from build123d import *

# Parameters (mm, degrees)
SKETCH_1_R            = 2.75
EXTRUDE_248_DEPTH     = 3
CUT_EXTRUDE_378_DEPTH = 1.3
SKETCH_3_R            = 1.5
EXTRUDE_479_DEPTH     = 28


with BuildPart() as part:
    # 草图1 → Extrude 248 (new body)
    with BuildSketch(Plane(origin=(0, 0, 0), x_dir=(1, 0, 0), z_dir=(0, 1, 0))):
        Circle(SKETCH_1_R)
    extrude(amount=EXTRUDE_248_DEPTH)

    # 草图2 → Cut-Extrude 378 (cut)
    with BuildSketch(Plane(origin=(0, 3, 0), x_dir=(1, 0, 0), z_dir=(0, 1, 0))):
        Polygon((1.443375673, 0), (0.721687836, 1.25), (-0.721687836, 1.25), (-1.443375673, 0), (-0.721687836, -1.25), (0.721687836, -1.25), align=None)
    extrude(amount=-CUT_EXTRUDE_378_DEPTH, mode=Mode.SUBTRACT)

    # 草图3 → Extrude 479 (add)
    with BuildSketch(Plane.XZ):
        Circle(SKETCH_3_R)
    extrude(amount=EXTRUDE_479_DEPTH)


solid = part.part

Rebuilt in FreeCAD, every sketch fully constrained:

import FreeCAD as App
import Part
import Sketcher
Q = App.Units.Quantity


def add_polygon(sketch, points):
    """Adds a closed chain of lines whose ends are joined by coincident constraints."""
    first, n = sketch.GeometryCount, len(points)
    for a, b in zip(points, points[1:] + points[:1]):
        sketch.addGeometry(Part.LineSegment(App.Vector(*a, 0), App.Vector(*b, 0)), False)
    for i in range(n):
        sketch.addConstraint(Sketcher.Constraint("Coincident", first + i, 2, first + (i + 1) % n, 1))

doc = App.newDocument("Part")
body = doc.addObject("PartDesign::Body", "Body")

sketch1 = body.newObject("Sketcher::SketchObject", "Sketch")
sketch1.AttachmentSupport = (doc.getObject("XZ_Plane"), [""])
sketch1.MapMode = "FlatFace"
sketch1.addGeometry(Part.Circle(App.Vector(0, 0, 0), App.Vector(0, 0, 1), 2.75), False)
sketch1.addConstraint(Sketcher.Constraint("Coincident", 0, 3, -1, 1))
sketch1.addConstraint(Sketcher.Constraint("Diameter", 0, Q("5.5 mm")))
pad1 = body.newObject("PartDesign::Pad", "Pad")
pad1.Profile = sketch1
pad1.Length = 3
pad1.Reversed = True

sketch2 = body.newObject("Sketcher::SketchObject", "Sketch001")
sketch2.AttachmentSupport = (doc.getObject("XZ_Plane"), [""])
sketch2.MapMode = "FlatFace"
sketch2.AttachmentOffset = App.Placement(App.Vector(0, 0, -3), App.Rotation())
add_polygon(sketch2, [(1.443376, 0), (0.721688, -1.25), (-0.721688, -1.25), (-1.443376, 0), (-0.721688, 1.25), (0.721688, 1.25)])
sketch2.addConstraint(Sketcher.Constraint("Horizontal", 1))
sketch2.addConstraint(Sketcher.Constraint("Horizontal", 4))
sketch2.addConstraint(Sketcher.Constraint("Symmetric", 0, 2, 3, 2, -1, 1))
sketch2.addConstraint(Sketcher.Constraint("Symmetric", 2, 2, 5, 2, -1, 1))
sketch2.addConstraint(Sketcher.Constraint("PointOnObject", 2, 2, -1))
sketch2.addConstraint(Sketcher.Constraint("Parallel", 2, 5))
sketch2.addConstraint(Sketcher.Constraint("Vertical", 1, 2, 3, 2))
sketch2.addConstraint(Sketcher.Constraint("Angle", 0, Q("-120 deg")))
sketch2.addConstraint(Sketcher.Constraint("DistanceY", 1, 2, 3, 2, Q("2.5 mm")))
sketch2.addConstraint(Sketcher.Constraint("DistanceX", 1, 2, 1, 1, Q("1.443376 mm")))
pocket1 = body.newObject("PartDesign::Pocket", "Pocket")
pocket1.Profile = sketch2
pocket1.Length = 1.3
pocket1.Reversed = True

sketch3 = body.newObject("Sketcher::SketchObject", "Sketch002")
sketch3.AttachmentSupport = (doc.getObject("XZ_Plane"), [""])
sketch3.MapMode = "FlatFace"
sketch3.addGeometry(Part.Circle(App.Vector(0, 0, 0), App.Vector(0, 0, 1), 1.5), False)
sketch3.addConstraint(Sketcher.Constraint("Coincident", 0, 3, -1, 1))
sketch3.addConstraint(Sketcher.Constraint("Diameter", 0, Q("3 mm")))
pad2 = body.newObject("PartDesign::Pad", "Pad001")
pad2.Profile = sketch3
pad2.Length = 28

doc.recompute()
